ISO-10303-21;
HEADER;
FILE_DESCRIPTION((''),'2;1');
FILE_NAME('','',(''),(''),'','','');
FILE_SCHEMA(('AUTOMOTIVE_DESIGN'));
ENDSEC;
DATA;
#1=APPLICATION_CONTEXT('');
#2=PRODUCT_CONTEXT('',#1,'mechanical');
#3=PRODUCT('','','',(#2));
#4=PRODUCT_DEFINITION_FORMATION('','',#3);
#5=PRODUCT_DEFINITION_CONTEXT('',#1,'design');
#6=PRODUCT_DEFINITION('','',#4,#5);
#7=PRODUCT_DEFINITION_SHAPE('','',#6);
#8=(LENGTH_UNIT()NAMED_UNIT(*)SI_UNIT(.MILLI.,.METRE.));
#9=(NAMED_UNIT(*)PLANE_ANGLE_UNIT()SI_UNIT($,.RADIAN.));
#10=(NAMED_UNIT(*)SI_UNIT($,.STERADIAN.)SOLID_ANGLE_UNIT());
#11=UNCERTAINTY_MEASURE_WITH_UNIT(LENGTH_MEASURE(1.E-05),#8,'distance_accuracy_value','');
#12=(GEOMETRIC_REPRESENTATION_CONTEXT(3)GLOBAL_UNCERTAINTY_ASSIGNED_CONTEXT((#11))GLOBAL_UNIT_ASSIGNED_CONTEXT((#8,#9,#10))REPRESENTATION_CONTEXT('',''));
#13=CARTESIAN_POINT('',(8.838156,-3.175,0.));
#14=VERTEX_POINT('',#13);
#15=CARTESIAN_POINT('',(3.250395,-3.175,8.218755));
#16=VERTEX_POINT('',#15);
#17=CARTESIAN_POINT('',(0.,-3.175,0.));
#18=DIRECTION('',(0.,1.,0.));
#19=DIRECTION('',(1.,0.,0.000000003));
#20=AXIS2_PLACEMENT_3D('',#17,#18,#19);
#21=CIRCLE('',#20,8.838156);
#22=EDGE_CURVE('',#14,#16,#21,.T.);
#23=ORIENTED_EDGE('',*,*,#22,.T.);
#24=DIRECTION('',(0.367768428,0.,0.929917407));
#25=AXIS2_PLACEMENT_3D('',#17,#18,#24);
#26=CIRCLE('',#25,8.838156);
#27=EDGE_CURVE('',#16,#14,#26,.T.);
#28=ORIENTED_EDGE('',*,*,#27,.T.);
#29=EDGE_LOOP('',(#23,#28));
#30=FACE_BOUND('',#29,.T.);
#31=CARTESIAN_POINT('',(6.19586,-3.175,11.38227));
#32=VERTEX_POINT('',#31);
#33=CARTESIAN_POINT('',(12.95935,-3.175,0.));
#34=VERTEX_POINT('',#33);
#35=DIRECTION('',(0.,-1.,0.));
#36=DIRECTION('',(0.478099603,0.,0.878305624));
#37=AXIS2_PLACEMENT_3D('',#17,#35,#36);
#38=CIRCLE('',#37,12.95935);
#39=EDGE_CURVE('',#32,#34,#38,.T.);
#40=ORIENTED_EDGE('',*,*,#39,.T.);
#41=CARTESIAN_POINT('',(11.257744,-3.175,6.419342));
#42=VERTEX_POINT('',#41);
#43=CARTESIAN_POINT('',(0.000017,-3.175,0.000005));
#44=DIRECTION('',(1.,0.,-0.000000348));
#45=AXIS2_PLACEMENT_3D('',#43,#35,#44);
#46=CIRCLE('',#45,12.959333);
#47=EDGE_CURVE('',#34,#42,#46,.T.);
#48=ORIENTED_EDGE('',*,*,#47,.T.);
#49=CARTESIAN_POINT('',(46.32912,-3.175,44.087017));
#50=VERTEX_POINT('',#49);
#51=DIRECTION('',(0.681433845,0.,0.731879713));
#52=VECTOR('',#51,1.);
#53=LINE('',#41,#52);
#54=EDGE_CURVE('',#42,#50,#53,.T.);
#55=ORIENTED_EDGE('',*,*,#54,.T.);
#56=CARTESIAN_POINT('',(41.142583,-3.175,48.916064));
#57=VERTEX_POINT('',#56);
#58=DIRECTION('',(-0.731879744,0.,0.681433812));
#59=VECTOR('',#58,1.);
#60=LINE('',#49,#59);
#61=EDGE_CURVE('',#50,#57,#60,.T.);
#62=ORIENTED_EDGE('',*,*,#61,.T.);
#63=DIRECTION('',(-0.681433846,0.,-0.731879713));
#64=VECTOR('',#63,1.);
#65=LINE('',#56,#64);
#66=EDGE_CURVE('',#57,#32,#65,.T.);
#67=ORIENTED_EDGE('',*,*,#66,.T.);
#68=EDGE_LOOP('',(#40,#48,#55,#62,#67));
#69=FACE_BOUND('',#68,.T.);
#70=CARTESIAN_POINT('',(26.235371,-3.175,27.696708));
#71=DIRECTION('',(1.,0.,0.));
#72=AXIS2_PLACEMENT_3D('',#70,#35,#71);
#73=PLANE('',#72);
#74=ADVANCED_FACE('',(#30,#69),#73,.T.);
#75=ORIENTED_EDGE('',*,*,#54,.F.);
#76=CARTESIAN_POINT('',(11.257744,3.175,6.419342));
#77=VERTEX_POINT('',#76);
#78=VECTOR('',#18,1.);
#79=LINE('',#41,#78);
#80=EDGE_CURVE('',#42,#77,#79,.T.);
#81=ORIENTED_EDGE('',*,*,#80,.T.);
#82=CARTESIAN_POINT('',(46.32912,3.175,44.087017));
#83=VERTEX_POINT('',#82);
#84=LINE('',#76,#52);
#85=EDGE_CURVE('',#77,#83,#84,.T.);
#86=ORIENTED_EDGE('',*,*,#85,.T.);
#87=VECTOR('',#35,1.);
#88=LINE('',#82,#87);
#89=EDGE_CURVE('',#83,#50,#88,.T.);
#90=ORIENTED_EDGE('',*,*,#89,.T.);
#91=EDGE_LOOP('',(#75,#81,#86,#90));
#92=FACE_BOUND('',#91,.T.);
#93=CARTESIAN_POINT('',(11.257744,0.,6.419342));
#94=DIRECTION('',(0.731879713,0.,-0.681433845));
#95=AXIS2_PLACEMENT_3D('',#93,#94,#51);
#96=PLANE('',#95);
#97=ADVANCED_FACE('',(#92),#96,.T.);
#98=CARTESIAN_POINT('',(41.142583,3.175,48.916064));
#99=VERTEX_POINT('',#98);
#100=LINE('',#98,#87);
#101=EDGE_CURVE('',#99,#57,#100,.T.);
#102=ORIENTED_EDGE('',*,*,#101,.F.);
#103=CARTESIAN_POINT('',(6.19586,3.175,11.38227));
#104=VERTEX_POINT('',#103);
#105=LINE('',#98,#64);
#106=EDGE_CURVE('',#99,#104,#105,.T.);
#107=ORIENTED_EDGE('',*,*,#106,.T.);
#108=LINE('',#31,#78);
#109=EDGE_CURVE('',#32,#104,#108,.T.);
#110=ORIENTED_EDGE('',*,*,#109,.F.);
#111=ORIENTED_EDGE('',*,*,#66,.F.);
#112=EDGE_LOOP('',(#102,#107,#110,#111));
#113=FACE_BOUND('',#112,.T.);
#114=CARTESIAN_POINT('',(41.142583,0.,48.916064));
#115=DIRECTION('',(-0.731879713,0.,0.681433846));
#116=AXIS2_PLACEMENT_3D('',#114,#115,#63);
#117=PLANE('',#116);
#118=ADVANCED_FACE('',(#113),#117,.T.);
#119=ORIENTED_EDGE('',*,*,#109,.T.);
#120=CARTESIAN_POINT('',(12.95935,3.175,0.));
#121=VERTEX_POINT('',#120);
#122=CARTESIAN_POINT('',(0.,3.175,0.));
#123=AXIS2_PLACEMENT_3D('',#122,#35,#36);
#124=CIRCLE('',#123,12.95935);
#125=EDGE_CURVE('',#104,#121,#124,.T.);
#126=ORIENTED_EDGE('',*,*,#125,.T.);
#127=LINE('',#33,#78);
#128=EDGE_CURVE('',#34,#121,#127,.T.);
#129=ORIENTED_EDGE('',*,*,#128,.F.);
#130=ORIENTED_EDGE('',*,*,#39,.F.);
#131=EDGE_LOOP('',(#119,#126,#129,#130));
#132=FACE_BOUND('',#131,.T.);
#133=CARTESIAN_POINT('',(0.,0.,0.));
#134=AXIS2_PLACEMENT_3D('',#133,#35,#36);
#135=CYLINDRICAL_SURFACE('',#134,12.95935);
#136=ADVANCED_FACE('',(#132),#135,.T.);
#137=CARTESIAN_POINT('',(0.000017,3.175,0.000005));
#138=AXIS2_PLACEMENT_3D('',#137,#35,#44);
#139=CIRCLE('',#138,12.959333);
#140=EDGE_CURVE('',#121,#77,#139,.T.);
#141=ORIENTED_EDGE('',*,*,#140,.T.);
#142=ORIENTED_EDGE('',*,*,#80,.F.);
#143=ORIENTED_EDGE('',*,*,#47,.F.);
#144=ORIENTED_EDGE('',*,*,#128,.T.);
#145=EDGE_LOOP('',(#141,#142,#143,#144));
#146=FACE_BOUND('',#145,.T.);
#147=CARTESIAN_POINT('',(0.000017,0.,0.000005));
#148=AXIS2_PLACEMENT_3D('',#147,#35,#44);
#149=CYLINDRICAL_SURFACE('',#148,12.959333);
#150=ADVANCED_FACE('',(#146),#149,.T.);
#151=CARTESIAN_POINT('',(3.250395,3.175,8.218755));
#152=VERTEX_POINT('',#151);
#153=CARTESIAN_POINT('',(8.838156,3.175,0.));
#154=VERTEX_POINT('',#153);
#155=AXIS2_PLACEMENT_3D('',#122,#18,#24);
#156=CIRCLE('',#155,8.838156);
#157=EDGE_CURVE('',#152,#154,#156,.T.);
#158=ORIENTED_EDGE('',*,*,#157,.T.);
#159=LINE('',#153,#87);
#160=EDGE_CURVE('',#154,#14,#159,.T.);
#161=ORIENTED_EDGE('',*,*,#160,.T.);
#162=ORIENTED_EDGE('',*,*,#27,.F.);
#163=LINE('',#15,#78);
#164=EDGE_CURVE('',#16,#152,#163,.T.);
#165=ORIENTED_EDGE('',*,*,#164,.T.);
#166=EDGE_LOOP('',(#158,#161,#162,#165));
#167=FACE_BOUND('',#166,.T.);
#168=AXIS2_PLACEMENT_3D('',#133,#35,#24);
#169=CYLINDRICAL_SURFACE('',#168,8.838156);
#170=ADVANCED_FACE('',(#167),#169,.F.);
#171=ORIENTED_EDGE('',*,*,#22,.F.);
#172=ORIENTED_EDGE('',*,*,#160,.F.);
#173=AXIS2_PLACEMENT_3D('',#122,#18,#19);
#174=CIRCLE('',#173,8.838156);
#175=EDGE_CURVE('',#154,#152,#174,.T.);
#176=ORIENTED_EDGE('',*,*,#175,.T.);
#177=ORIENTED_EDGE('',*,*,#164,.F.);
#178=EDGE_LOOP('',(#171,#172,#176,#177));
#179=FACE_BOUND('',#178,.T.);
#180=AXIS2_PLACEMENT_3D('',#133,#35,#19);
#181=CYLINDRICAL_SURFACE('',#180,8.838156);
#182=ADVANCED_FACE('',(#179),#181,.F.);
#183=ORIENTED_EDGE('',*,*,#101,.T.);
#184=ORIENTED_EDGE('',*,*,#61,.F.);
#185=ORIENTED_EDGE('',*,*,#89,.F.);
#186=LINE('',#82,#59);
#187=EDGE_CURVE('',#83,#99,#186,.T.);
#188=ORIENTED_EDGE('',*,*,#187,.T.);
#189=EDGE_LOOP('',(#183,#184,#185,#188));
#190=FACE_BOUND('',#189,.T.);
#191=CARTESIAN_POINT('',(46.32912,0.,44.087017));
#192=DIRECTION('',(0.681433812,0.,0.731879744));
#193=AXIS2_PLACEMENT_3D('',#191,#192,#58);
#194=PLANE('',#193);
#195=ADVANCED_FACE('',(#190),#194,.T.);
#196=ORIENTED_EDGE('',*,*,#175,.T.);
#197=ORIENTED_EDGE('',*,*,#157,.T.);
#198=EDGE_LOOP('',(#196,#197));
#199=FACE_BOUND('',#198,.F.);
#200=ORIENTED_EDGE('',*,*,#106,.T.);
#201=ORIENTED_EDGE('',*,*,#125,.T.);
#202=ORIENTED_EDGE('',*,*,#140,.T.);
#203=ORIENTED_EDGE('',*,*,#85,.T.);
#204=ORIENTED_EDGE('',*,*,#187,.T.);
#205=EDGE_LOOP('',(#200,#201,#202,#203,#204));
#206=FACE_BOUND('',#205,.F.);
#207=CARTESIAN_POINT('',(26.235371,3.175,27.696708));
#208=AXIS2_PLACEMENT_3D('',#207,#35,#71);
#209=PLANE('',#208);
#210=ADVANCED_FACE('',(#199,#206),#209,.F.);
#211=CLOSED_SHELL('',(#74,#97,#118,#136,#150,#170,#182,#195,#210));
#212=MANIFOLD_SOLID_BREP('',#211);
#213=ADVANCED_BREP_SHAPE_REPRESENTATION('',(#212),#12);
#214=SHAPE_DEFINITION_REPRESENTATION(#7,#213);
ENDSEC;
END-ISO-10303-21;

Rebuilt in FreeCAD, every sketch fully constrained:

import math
import FreeCAD as App
import Part
import Sketcher
from FreeCAD import Vector
Q = App.Units.Quantity

doc = App.newDocument("Part")
body = doc.addObject("PartDesign::Body", "Body")

sketch1 = body.newObject("Sketcher::SketchObject", "Sketch")
sketch1.AttachmentSupport = (doc.getObject("XZ_Plane"), [""])
sketch1.MapMode = "FlatFace"
sketch1.addGeometry([
    Part.LineSegment(Vector(11, 6, 0), Vector(46, 44, 0)),
    Part.LineSegment(Vector(46, 44, 0), Vector(41, 49, 0)),
    Part.LineSegment(Vector(41, 49, 0), Vector(6, 11, 0)),
    Part.ArcOfCircle(Part.Circle(Vector(0, 0, 0), Vector(0, 0, 1), 13), math.radians(61), math.radians(360)),
    Part.ArcOfCircle(Part.Circle(Vector(0, 0, 0), Vector(0, 0, 1), 13), math.radians(0), math.radians(30)),
    Part.ArcOfCircle(Part.Circle(Vector(0, 0, 0), Vector(0, 0, 1), 9), math.radians(0), math.radians(68)),
    Part.ArcOfCircle(Part.Circle(Vector(0, 0, 0), Vector(0, 0, 1), 9), math.radians(68), math.radians(360)),
], False)
sketch1.addConstraint([
    Sketcher.Constraint("Coincident", 0, 2, 1, 1),
    Sketcher.Constraint("Coincident", 1, 2, 2, 1),
    Sketcher.Constraint("Coincident", 2, 2, 3, 1),
    Sketcher.Constraint("Tangent", 3, 2, 4, 1),
    Sketcher.Constraint("Coincident", 4, 2, 0, 1),
    Sketcher.Constraint("Tangent", 5, 1, 6, 2),
    Sketcher.Constraint("Coincident", 6, 1, 5, 2),
    Sketcher.Constraint("Coincident", 3, 3, -1, 1),
    Sketcher.Constraint("Coincident", 5, 3, -1, 1),
    Sketcher.Constraint("PointOnObject", 3, 2, -1),
    Sketcher.Constraint("PointOnObject", 5, 1, -1),
    Sketcher.Constraint("Perpendicular", 0, 1),
    Sketcher.Constraint("Perpendicular", 1, 2),
    Sketcher.Constraint("Distance", 1, Q("0.2789999 in")),
    Sketcher.Constraint("Radius", 3, Q("12.95935 mm")),
    Sketcher.Constraint("Radius", 4, Q("12.959333 mm")),
    Sketcher.Constraint("Radius", 5, Q("8.838156 mm")),
    Sketcher.Constraint("Distance", 0, Q("51.46703 mm")),
    Sketcher.Constraint("DistanceX", -1, 1, 0, 2, Q("46.32912 mm")),
    Sketcher.Constraint("DistanceX", -1, 1, 2, 2, Q("6.19586 mm")),
    Sketcher.Constraint("DistanceX", 6, 1, 4, 2, Q("8.007349 mm")),
])
pad1 = body.newObject("PartDesign::Pad", "Pad")
pad1.Profile = sketch1
pad1.Length = Q("0.25 in")
pad1.Midplane = True

doc.recompute()
